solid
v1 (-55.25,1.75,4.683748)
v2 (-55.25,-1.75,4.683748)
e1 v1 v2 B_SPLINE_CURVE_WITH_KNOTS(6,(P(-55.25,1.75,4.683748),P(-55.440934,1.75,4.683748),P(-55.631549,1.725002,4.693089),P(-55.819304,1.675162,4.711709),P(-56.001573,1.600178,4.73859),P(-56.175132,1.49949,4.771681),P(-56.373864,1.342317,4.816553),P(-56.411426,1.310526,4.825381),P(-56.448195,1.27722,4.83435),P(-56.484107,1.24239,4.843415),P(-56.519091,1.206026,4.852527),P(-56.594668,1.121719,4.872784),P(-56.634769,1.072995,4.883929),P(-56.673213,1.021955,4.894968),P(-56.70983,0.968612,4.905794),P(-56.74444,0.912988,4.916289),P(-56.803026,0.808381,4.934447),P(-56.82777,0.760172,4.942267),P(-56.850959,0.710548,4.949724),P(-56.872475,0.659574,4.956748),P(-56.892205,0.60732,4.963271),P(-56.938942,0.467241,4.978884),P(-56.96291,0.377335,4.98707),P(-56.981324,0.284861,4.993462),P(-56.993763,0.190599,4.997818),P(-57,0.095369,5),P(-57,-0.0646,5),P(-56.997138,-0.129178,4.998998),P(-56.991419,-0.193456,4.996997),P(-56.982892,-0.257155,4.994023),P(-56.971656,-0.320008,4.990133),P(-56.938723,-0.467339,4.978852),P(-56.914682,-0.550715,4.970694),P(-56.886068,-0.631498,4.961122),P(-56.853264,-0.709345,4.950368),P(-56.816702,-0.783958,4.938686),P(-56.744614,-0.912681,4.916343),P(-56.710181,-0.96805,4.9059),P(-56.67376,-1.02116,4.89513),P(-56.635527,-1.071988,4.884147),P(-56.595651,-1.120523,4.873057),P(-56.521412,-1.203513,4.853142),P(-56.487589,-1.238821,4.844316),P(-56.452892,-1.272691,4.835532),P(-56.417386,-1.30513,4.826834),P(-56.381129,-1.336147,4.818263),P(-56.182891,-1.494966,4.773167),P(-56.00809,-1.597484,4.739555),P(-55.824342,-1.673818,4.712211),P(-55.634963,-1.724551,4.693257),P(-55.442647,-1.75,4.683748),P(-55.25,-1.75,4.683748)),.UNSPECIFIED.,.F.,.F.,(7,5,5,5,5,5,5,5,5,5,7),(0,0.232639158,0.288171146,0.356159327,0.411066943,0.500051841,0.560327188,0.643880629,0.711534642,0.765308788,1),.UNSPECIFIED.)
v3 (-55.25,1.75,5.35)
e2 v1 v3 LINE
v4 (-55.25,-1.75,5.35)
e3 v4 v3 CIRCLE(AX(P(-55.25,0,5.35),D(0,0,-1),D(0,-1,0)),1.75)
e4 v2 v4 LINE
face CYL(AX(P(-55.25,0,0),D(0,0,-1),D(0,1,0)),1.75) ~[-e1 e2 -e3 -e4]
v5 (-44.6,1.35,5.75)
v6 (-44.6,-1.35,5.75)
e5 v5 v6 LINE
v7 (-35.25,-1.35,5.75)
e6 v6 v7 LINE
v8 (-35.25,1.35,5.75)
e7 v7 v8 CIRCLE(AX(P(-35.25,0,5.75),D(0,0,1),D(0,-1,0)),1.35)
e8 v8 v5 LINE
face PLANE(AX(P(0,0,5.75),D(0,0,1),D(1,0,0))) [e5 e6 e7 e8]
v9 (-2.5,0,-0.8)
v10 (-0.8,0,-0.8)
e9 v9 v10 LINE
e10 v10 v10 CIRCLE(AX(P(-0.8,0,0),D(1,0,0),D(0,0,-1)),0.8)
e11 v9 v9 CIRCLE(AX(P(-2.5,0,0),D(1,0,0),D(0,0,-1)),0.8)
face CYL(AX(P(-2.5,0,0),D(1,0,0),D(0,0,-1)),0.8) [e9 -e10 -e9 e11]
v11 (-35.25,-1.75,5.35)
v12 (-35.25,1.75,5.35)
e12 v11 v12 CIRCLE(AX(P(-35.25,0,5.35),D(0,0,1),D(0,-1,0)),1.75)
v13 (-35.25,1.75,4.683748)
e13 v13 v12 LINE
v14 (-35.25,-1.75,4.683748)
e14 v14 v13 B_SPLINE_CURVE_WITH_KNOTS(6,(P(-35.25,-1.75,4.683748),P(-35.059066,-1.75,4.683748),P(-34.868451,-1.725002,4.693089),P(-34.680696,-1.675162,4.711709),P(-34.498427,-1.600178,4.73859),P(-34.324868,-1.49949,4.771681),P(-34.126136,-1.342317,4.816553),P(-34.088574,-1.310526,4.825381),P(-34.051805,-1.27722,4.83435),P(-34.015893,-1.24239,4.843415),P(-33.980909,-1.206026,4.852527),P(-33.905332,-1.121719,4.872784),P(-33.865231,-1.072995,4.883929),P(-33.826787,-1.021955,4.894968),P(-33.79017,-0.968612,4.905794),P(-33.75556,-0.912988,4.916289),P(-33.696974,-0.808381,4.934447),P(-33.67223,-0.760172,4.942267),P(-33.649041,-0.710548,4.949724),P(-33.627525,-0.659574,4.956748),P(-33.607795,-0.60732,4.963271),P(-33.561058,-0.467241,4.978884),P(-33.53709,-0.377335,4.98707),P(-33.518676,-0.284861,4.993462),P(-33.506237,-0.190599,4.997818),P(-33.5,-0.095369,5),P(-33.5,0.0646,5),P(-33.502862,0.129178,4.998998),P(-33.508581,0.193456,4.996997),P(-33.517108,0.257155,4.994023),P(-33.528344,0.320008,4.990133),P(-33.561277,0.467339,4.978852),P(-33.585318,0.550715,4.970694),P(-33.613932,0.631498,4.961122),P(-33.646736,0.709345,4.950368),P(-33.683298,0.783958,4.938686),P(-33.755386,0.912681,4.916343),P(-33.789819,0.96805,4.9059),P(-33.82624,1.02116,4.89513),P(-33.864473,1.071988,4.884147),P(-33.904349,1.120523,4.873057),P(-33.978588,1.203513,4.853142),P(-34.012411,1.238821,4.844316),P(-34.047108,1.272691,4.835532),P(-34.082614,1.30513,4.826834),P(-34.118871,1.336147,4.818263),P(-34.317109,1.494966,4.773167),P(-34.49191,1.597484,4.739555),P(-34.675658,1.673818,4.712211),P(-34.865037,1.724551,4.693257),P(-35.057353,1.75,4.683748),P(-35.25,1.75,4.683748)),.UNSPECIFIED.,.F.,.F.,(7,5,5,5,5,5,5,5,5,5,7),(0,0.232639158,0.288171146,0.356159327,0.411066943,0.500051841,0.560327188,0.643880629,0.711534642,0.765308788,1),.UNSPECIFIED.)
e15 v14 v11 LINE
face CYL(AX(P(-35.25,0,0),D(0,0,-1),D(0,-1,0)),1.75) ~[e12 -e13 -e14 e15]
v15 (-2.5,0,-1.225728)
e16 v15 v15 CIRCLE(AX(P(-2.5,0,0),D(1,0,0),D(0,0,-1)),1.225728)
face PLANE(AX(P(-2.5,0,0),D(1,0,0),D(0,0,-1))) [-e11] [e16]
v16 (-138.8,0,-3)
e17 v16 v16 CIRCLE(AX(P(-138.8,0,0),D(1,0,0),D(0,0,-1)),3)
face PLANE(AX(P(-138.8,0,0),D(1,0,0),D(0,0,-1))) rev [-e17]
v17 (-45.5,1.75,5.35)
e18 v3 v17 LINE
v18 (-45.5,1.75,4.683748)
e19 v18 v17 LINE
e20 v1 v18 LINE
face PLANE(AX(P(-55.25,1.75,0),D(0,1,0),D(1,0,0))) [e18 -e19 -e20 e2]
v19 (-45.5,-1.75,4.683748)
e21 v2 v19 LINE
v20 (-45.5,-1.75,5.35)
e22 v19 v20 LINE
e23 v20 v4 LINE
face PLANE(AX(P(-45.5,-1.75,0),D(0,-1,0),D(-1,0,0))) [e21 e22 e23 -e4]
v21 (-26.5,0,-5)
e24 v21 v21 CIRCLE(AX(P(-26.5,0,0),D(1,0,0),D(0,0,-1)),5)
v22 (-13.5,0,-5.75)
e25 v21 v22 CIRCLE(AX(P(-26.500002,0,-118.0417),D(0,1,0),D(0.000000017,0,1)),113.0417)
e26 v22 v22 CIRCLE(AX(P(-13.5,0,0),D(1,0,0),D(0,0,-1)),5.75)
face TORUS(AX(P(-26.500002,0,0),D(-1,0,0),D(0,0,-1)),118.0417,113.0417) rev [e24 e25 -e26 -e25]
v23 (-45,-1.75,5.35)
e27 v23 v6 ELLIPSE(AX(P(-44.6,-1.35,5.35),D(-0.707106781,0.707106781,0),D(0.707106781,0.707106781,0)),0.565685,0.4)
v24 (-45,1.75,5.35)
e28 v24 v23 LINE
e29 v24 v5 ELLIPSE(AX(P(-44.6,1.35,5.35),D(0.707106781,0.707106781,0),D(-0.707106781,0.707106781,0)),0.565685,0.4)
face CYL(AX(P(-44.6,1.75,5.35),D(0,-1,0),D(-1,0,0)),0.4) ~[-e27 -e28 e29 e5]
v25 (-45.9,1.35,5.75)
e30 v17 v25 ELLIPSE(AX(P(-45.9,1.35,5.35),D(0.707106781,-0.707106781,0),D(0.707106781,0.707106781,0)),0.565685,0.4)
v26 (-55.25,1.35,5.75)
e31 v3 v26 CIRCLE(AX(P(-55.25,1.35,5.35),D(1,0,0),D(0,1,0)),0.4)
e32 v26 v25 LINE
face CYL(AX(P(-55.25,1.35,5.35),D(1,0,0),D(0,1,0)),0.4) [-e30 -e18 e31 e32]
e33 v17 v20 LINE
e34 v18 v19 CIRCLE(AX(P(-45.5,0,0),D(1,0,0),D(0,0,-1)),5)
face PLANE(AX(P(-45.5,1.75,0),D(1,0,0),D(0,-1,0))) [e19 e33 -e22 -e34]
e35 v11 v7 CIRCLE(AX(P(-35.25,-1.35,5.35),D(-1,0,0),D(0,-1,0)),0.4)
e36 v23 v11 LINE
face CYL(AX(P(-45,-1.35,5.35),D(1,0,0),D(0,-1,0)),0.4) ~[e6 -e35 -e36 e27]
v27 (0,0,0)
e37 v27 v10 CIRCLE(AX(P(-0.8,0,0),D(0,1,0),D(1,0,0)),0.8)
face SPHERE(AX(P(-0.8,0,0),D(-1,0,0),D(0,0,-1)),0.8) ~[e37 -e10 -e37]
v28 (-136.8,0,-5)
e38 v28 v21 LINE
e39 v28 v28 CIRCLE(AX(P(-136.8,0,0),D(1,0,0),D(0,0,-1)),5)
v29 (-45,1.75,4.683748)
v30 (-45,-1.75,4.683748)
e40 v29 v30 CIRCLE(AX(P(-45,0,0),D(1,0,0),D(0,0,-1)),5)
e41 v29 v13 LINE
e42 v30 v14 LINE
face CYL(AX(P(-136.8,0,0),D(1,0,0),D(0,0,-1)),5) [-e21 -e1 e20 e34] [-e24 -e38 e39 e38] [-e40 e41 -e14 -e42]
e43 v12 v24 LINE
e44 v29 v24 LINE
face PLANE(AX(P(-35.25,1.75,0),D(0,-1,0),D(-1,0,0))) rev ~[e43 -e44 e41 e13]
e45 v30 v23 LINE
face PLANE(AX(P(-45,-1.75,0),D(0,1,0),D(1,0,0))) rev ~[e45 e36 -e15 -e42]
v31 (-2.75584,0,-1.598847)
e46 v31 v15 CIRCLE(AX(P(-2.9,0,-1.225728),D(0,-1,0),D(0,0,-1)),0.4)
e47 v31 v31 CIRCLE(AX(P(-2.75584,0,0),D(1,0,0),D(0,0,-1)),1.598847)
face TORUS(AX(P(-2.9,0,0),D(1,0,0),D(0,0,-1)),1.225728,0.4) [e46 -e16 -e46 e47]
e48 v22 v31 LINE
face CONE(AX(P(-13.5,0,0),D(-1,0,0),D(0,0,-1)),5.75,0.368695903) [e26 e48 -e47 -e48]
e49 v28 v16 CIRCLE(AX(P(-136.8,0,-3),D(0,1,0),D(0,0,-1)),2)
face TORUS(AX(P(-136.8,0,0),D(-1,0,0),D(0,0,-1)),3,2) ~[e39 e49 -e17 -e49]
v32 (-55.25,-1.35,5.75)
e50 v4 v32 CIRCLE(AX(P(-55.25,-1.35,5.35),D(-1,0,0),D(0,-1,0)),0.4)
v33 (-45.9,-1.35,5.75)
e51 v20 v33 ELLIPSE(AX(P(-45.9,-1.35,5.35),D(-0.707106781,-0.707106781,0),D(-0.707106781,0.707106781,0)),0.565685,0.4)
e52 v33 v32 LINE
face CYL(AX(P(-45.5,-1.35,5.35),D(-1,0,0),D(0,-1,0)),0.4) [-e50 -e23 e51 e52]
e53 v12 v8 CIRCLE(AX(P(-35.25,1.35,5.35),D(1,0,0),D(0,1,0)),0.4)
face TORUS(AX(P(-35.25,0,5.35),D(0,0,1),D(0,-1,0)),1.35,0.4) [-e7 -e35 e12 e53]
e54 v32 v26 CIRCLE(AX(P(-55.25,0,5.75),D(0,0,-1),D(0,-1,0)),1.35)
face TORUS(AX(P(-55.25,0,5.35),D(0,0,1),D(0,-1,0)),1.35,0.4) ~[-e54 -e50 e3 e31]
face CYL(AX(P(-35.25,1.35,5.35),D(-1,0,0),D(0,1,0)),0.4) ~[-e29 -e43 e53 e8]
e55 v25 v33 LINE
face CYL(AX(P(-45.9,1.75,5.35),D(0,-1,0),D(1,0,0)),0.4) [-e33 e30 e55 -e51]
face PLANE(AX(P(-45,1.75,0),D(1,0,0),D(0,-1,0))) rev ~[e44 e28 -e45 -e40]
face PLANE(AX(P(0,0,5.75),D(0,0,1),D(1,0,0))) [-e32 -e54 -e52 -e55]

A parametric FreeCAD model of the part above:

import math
import FreeCAD as App
import Part
import Sketcher

V = App.Vector
Q = App.Units.Quantity


def edges_at(feature, points):
    """Names of the edges that pass closest to the given points."""
    edges = feature.Shape.Edges
    near = lambda p: min(range(len(edges)), key=lambda i: edges[i].distToShape(Part.Vertex(*p))[0])
    return sorted({f"Edge{near(p) + 1}" for p in points})

doc = App.newDocument("Part")
body = doc.addObject("PartDesign::Body", "Body")

sketch1 = body.newObject("Sketcher::SketchObject", "Sketch")
sketch1.AttachmentSupport = (doc.getObject("XZ_Plane"), [""])
sketch1.MapMode = "FlatFace"
sketch1.addGeometry([
    Part.LineSegment(V(-138.8, -3, 0), V(-138.8, 0, 0)),
    Part.LineSegment(V(-138.8, 0, 0), V(0, 0, 0)),
    Part.ArcOfCircle(Part.Circle(V(-0.8, 0, 0), V(0, 0, 1), 0.8), math.radians(-90), math.radians(0)),
    Part.LineSegment(V(-0.8, -0.8, 0), V(-2.5, -0.8, 0)),
    Part.LineSegment(V(-2.5, -0.8, 0), V(-2.5, -1.5, 0)),
    Part.LineSegment(V(-2.5, -1.5, 0), V(-13.5, -5.8, 0)),
    Part.ArcOfCircle(Part.Circle(V(-26.5, -118, 0), V(0, 0, 1), 113), math.radians(83.4), math.radians(90)),
    Part.LineSegment(V(-26.5, -5, 0), V(-136.8, -5, 0)),
    Part.ArcOfCircle(Part.Circle(V(-136.8, -3, 0), V(0, 0, 1), 2), math.radians(180), math.radians(270)),
], False)
sketch1.addConstraint([
    Sketcher.Constraint("Coincident", 0, 2, 1, 1),
    Sketcher.Constraint("Coincident", 1, 2, 2, 2),
    Sketcher.Constraint("Tangent", 2, 1, 3, 1),
    Sketcher.Constraint("Coincident", 3, 2, 4, 1),
    Sketcher.Constraint("Coincident", 4, 2, 5, 1),
    Sketcher.Constraint("Coincident", 5, 2, 6, 1),
    Sketcher.Constraint("Tangent", 6, 2, 7, 1),
    Sketcher.Constraint("Tangent", 7, 2, 8, 2),
    Sketcher.Constraint("Tangent", 8, 1, 0, 1),
    Sketcher.Constraint("Vertical", 0),
    Sketcher.Constraint("Horizontal", 1),
    Sketcher.Constraint("Horizontal", 3),
    Sketcher.Constraint("Vertical", 4),
    Sketcher.Constraint("Horizontal", 7),
    Sketcher.Constraint("Coincident", 1, 2, -1, 1),
    Sketcher.Constraint("PointOnObject", 2, 3, -1),
    Sketcher.Constraint("Radius", 2, Q("0.8 mm")),
    Sketcher.Constraint("DistanceY", 0, 1, 0, 2, Q("3 mm")),
    Sketcher.Constraint("DistanceY", 6, 2, -1, 1, Q("5 mm")),
    Sketcher.Constraint("DistanceX", 5, 2, 4, 2, Q("11 mm")),
    Sketcher.Constraint("DistanceX", 6, 2, 5, 2, Q("13 mm")),
    Sketcher.Constraint("DistanceX", 3, 2, -1, 1, Q("2.5 mm")),
    Sketcher.Constraint("DistanceY", 4, 2, -1, 1, Q("1.5 mm")),
    Sketcher.Constraint("DistanceX", 8, 1, 5, 2, Q("125.3 mm")),
    Sketcher.Constraint("DistanceY", 5, 2, -1, 1, Q("5.75 mm")),
])
revolution = body.newObject("PartDesign::Revolution", "Revolution")
revolution.Profile = sketch1
revolution.ReferenceAxis = (sketch1, ["H_Axis"])
revolution.Angle = 360

sketch2 = body.newObject("Sketcher::SketchObject", "Sketch001")
sketch2.AttachmentSupport = (doc.getObject("XY_Plane"), [""])
sketch2.MapMode = "FlatFace"
sketch2.addGeometry([
    Part.LineSegment(V(-35.2, 1.8, 0), V(-45, 1.8, 0)),
    Part.LineSegment(V(-45, 1.8, 0), V(-45, -1.8, 0)),
    Part.LineSegment(V(-45, -1.8, 0), V(-35.2, -1.8, 0)),
    Part.ArcOfCircle(Part.Circle(V(-35.2, 0, 0), V(0, 0, 1), 1.8), math.radians(-90), math.radians(90)),
    Part.LineSegment(V(-45.5, -1.8, 0), V(-45.5, 1.8, 0)),
    Part.LineSegment(V(-45.5, 1.8, 0), V(-55.2, 1.8, 0)),
    Part.ArcOfCircle(Part.Circle(V(-55.2, 0, 0), V(0, 0, 1), 1.8), math.radians(90), math.radians(270)),
    Part.LineSegment(V(-55.2, -1.8, 0), V(-45.5, -1.8, 0)),
], False)
sketch2.addConstraint([
    Sketcher.Constraint("Coincident", 0, 2, 1, 1),
    Sketcher.Constraint("Coincident", 1, 2, 2, 1),
    Sketcher.Constraint("Tangent", 2, 2, 3, 1),
    Sketcher.Constraint("Tangent", 3, 2, 0, 1),
    Sketcher.Constraint("Coincident", 4, 2, 5, 1),
    Sketcher.Constraint("Tangent", 5, 2, 6, 1),
    Sketcher.Constraint("Tangent", 6, 2, 7, 1),
    Sketcher.Constraint("Coincident", 7, 2, 4, 1),
    Sketcher.Constraint("Horizontal", 0),
    Sketcher.Constraint("Vertical", 1),
    Sketcher.Constraint("Horizontal", 2),
    Sketcher.Constraint("Vertical", 4),
    Sketcher.Constraint("Horizontal", 5),
    Sketcher.Constraint("Horizontal", 7),
    Sketcher.Constraint("Equal", 3, 6),
    Sketcher.Constraint("PointOnObject", 3, 3, -1),
    Sketcher.Constraint("PointOnObject", 6, 3, -1),
    Sketcher.Constraint("Equal", 2, 5),
    Sketcher.Constraint("Radius", 3, Q("1.75 mm")),
    Sketcher.Constraint("DistanceX", 6, 3, 3, 3, Q("20 mm")),
    Sketcher.Constraint("DistanceX", 4, 2, 0, 2, Q("0.5 mm")),
    Sketcher.Constraint("DistanceX", 0, 2, -1, 1, Q("45 mm")),
])
pad1 = body.newObject("PartDesign::Pad", "Pad")
pad1.Profile = sketch2
pad1.Length = 5.75
doc.recompute()

fillet = body.newObject("PartDesign::Fillet", "Fillet")
fillet.Base = (pad1, edges_at(pad1, [
    (-40.125, -1.75, 5.75),
    (-33.5, 0, 5.75),
    (-40.125, 1.75, 5.75),
    (-50.375, 1.75, 5.75),
    (-57, 0, 5.75),
    (-50.375, -1.75, 5.75),
    (-45.5, 0, 5.75),
    (-45, 0, 5.75),
]))
fillet.Radius = 0.4
doc.recompute()

fillet2 = body.newObject("PartDesign::Fillet", "Fillet001")
fillet2.Base = (fillet, edges_at(fillet, [(-2.5, -0.542, 1.399)]))
fillet2.Radius = 0.4

doc.recompute()
